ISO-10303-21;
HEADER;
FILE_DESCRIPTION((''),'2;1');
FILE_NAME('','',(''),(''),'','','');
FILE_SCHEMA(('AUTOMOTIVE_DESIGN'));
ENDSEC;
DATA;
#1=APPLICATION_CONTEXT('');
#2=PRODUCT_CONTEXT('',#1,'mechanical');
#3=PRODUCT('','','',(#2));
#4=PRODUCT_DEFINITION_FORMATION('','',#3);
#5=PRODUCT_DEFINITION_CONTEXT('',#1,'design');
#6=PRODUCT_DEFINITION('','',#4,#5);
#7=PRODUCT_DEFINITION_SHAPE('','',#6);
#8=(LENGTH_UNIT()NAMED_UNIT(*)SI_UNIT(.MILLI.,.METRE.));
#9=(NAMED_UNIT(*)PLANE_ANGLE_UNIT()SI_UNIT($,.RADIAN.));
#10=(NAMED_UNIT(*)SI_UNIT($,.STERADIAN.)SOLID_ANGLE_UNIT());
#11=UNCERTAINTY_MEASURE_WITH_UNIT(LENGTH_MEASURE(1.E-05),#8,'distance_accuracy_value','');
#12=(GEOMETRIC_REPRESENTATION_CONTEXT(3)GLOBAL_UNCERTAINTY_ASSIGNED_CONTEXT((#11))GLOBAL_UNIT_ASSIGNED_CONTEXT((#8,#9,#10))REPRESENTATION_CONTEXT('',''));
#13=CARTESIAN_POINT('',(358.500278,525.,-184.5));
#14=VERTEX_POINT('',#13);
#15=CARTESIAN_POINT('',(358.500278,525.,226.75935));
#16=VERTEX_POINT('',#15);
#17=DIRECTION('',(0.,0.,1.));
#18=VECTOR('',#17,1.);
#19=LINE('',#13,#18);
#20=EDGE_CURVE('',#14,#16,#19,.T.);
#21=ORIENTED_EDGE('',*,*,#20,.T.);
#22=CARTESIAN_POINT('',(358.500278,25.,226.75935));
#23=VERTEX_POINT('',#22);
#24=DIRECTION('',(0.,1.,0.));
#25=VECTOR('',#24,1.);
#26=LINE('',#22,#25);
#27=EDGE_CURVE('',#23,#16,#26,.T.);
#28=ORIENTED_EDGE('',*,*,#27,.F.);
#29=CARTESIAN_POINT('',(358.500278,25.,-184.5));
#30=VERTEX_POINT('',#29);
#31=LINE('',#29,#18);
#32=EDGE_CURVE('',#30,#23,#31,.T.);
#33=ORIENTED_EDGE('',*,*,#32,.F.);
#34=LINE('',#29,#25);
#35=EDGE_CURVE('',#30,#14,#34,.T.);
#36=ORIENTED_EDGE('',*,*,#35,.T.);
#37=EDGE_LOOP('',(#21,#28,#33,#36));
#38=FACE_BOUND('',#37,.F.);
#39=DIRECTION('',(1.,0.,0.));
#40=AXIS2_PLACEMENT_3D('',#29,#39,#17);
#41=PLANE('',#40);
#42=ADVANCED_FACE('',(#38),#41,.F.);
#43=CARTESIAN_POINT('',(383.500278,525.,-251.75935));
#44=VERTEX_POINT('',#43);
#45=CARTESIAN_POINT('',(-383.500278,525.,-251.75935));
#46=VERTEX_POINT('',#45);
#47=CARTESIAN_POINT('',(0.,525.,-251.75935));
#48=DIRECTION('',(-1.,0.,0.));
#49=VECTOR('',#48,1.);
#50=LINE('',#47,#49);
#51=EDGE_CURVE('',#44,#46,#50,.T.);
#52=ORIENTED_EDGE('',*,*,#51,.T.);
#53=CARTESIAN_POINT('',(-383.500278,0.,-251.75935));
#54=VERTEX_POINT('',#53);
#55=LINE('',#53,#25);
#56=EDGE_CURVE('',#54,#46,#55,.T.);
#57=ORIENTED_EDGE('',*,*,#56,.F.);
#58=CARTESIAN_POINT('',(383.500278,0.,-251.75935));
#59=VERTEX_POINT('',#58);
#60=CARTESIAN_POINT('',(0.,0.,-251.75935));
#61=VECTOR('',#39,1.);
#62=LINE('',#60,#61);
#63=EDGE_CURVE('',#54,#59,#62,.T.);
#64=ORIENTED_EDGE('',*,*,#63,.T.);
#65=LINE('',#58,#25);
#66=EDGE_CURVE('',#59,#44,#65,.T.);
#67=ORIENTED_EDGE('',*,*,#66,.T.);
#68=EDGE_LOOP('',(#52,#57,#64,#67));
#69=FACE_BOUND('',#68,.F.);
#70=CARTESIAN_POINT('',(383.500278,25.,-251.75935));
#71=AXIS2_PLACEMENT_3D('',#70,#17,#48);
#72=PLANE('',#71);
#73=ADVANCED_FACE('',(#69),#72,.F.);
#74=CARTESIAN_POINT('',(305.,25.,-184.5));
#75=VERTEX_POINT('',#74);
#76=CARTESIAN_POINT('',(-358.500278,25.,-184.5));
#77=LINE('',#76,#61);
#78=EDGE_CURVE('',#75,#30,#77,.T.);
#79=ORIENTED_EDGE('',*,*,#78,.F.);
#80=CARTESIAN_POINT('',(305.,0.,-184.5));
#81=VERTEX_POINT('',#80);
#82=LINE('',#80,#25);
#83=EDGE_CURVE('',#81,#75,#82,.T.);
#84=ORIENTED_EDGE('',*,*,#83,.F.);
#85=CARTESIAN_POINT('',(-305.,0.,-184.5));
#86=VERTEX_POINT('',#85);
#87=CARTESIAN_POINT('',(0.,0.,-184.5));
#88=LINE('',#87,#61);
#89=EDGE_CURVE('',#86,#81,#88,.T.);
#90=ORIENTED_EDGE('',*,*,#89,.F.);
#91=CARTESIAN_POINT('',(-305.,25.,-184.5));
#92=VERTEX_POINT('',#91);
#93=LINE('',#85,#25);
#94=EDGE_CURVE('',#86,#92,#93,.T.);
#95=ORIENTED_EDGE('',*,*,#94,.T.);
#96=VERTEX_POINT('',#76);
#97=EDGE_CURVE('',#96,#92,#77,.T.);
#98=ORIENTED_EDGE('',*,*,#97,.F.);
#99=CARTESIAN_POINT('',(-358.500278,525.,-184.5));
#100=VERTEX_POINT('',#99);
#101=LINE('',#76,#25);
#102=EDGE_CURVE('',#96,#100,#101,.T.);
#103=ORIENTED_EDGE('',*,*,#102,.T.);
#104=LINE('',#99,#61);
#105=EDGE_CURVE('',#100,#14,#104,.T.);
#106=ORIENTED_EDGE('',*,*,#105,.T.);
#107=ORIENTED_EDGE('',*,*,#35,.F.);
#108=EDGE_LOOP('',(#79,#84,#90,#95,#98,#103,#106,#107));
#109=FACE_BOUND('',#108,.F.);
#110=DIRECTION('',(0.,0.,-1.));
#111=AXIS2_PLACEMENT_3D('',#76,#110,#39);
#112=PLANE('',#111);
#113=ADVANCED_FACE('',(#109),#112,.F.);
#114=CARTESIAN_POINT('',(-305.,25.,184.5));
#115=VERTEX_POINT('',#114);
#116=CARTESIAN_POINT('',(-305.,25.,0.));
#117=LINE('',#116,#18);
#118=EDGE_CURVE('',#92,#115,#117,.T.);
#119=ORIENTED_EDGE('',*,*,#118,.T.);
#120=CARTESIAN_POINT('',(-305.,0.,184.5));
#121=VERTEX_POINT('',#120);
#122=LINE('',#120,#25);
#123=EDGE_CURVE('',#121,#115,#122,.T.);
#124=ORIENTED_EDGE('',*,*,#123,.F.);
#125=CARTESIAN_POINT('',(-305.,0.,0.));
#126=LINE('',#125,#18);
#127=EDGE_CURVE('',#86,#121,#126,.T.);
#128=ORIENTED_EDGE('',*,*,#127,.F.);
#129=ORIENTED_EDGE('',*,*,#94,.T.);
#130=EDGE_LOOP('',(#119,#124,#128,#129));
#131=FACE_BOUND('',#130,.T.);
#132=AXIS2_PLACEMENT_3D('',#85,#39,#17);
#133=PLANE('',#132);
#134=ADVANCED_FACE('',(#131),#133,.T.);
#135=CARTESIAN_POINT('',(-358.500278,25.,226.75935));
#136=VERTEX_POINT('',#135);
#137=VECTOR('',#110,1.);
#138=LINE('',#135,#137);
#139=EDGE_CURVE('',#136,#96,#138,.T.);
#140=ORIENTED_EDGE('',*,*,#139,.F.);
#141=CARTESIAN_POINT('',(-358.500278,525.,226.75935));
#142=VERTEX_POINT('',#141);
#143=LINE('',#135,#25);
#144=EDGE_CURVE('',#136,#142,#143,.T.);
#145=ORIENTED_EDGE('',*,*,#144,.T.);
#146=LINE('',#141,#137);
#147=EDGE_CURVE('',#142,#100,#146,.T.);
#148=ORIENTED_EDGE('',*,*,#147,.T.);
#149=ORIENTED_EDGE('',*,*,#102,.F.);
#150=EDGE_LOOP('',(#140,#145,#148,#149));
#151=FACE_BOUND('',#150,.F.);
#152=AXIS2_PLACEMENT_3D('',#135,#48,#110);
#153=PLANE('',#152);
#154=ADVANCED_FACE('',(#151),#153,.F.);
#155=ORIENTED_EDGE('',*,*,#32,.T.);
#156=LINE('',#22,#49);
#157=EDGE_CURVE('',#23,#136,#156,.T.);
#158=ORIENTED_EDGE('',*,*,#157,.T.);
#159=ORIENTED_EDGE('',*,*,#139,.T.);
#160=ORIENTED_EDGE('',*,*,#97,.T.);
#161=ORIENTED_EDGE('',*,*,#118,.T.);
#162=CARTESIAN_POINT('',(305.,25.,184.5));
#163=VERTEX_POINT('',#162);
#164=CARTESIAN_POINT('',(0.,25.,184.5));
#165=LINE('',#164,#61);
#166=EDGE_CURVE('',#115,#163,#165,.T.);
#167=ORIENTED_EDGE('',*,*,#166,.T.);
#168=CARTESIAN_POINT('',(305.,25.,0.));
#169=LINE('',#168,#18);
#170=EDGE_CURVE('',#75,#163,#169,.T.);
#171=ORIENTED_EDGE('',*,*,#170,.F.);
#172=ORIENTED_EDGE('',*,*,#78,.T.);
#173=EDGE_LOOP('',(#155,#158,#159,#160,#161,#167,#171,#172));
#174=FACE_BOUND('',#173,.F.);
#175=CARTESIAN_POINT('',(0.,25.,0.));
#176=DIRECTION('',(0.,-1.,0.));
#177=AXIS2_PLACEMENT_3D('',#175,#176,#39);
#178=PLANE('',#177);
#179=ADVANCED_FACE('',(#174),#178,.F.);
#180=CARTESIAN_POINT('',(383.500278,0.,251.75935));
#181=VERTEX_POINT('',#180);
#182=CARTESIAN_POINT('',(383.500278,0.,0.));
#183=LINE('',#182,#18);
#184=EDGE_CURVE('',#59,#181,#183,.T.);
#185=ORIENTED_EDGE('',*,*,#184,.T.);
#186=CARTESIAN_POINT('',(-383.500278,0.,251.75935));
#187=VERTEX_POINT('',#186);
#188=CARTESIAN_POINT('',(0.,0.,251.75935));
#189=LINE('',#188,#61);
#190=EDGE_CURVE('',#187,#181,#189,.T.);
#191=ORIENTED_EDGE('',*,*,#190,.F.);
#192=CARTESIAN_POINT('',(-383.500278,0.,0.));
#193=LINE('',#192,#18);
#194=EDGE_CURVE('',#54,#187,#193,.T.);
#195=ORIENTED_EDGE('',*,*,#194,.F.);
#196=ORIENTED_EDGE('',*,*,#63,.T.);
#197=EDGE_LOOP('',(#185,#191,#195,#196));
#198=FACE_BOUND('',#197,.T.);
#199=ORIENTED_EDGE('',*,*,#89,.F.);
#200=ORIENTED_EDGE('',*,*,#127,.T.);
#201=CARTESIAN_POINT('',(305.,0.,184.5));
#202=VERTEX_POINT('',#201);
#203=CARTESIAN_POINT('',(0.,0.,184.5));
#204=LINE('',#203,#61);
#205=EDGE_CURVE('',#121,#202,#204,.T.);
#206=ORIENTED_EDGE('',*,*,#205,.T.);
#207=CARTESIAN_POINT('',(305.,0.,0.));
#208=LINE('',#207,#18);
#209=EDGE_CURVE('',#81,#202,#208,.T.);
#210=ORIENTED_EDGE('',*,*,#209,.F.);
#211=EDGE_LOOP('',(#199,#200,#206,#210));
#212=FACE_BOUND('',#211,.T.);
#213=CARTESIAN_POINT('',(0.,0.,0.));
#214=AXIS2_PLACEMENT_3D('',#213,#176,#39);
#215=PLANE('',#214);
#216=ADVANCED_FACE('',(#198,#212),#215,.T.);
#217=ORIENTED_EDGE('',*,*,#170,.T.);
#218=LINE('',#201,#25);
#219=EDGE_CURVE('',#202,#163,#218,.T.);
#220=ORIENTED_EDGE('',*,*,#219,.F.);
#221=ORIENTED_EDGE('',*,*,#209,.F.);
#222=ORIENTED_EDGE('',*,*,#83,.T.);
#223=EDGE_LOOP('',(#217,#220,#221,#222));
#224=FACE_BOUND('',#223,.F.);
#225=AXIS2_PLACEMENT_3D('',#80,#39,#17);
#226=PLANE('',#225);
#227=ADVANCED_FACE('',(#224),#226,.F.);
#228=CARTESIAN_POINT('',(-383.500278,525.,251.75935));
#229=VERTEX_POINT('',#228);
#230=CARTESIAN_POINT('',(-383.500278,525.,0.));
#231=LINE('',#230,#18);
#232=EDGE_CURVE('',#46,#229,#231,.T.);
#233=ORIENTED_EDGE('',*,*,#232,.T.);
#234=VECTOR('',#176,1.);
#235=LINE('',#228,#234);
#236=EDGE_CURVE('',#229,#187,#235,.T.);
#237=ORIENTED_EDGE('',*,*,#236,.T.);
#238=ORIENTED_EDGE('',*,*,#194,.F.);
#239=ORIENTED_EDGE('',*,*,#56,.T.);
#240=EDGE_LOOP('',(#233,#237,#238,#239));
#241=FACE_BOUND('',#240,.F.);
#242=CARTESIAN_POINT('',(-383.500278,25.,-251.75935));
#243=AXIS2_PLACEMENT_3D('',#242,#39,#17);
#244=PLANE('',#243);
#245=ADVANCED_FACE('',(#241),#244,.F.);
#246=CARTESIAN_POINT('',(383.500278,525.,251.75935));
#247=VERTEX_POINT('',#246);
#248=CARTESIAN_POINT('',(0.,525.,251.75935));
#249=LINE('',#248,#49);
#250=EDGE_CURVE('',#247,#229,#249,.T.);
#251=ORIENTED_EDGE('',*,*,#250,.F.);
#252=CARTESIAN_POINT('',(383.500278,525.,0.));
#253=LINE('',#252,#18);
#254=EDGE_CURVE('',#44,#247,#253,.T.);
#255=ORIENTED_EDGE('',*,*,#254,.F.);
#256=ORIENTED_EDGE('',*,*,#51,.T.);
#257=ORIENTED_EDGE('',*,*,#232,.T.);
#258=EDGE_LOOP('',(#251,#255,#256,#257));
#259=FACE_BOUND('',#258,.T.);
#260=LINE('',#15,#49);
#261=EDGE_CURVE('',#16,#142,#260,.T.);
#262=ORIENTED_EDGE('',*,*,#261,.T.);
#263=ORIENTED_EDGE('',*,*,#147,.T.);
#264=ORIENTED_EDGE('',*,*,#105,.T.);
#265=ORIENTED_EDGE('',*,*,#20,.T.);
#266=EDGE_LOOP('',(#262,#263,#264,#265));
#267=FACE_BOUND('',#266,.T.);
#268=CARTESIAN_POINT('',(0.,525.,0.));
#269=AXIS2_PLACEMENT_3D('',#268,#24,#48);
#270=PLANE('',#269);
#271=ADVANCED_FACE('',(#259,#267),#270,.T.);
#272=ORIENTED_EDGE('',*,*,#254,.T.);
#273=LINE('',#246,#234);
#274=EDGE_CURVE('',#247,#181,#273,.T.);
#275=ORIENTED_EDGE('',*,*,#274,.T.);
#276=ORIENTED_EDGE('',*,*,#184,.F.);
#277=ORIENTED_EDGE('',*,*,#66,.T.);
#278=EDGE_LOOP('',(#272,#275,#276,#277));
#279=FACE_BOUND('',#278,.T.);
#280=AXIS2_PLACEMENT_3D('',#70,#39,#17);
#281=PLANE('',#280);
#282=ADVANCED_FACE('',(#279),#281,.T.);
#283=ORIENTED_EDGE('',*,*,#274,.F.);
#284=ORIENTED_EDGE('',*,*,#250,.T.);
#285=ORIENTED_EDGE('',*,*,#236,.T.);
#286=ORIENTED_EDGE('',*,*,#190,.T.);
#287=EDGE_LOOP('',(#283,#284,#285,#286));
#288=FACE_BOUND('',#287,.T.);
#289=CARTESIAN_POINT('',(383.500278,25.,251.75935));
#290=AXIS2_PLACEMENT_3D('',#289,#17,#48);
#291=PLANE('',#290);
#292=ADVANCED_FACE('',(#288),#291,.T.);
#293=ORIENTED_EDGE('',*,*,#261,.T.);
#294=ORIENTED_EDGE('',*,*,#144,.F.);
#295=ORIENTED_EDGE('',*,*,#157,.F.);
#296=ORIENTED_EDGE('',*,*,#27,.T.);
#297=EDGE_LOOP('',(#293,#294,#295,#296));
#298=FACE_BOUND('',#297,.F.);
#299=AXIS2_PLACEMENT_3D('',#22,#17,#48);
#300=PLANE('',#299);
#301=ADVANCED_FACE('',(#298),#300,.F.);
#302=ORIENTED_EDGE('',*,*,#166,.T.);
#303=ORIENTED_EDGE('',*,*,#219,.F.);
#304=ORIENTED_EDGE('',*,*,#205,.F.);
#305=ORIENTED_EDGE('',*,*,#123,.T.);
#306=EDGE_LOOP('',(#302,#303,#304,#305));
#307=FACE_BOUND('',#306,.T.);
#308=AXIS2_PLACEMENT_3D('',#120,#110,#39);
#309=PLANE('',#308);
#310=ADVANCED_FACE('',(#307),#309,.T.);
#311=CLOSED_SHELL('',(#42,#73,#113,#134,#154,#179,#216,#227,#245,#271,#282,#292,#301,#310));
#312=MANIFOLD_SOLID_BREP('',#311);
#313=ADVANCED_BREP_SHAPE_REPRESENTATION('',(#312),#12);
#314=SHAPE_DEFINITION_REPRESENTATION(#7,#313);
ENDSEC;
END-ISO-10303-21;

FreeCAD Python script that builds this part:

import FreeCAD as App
import Part
import Sketcher

doc = App.newDocument("Part")
body = doc.addObject("PartDesign::Body", "Body")

# Sketch on XZ plane
sketch1 = doc.addObject("Sketcher::SketchObject", "Sketch")
body.addObject(sketch1)
sketch1.AttachmentSupport = (doc.XZ_Plane, [""])
sketch1.MapMode = "FlatFace"
sketch1.addGeometry(Part.LineSegment(App.Vector(-383.500278, 251.75935, 0), App.Vector(-383.500278, -251.75935, 0)), False)
sketch1.addGeometry(Part.LineSegment(App.Vector(-383.500278, -251.75935, 0), App.Vector(383.500278, -251.75935, 0)), False)
sketch1.addGeometry(Part.LineSegment(App.Vector(383.500278, -251.75935, 0), App.Vector(383.500278, 251.75935, 0)), False)
sketch1.addGeometry(Part.LineSegment(App.Vector(383.500278, 251.75935, 0), App.Vector(-383.500278, 251.75935, 0)), False)
sketch1.addGeometry(Part.LineSegment(App.Vector(305, -184.5, 0), App.Vector(-305, -184.5, 0)), False)
sketch1.addGeometry(Part.LineSegment(App.Vector(-305, -184.5, 0), App.Vector(-305, 184.5, 0)), False)
sketch1.addGeometry(Part.LineSegment(App.Vector(-305, 184.5, 0), App.Vector(305, 184.5, 0)), False)
sketch1.addGeometry(Part.LineSegment(App.Vector(305, 184.5, 0), App.Vector(305, -184.5, 0)), False)
sketch1.addConstraint(Sketcher.Constraint("Coincident", 0, 2, 1, 1))
sketch1.addConstraint(Sketcher.Constraint("Coincident", 1, 2, 2, 1))
sketch1.addConstraint(Sketcher.Constraint("Coincident", 2, 2, 3, 1))
sketch1.addConstraint(Sketcher.Constraint("Coincident", 3, 2, 0, 1))
sketch1.addConstraint(Sketcher.Constraint("Coincident", 4, 2, 5, 1))
sketch1.addConstraint(Sketcher.Constraint("Coincident", 5, 2, 6, 1))
sketch1.addConstraint(Sketcher.Constraint("Coincident", 6, 2, 7, 1))
sketch1.addConstraint(Sketcher.Constraint("Coincident", 7, 2, 4, 1))
sketch1.addConstraint(Sketcher.Constraint("Vertical", 0))
sketch1.addConstraint(Sketcher.Constraint("Horizontal", 1))
sketch1.addConstraint(Sketcher.Constraint("Vertical", 2))
sketch1.addConstraint(Sketcher.Constraint("Horizontal", 3))
sketch1.addConstraint(Sketcher.Constraint("Horizontal", 4))
sketch1.addConstraint(Sketcher.Constraint("Vertical", 5))
sketch1.addConstraint(Sketcher.Constraint("Horizontal", 6))
sketch1.addConstraint(Sketcher.Constraint("Vertical", 7))
sketch1.addConstraint(Sketcher.Constraint("Symmetric", 0, 2, 2, 2, -1, 1))
sketch1.addConstraint(Sketcher.Constraint("Symmetric", 4, 2, 6, 2, -1, 1))
sketch1.addConstraint(Sketcher.Constraint("DistanceX", 4, 2, 4, 1, 610.0))
sketch1.addConstraint(Sketcher.Constraint("DistanceY", 5, 1, 5, 2, 369.0))
sketch1.addConstraint(Sketcher.Constraint("DistanceY", 0, 2, 0, 1, 503.5187))
sketch1.addConstraint(Sketcher.Constraint("DistanceX", 1, 1, 1, 2, 767.000556))
pad1 = doc.addObject("PartDesign::Pad", "Pad")
body.addObject(pad1)
pad1.Profile = sketch1
pad1.Length = 25
pad1.Reversed = True

# Sketch on XZ plane
sketch2 = doc.addObject("Sketcher::SketchObject", "Sketch001")
body.addObject(sketch2)
sketch2.AttachmentSupport = (doc.XZ_Plane, [""])
sketch2.MapMode = "FlatFace"
sketch2.AttachmentOffset = App.Placement(App.Vector(0, 0, -25), App.Rotation())
sketch2.addGeometry(Part.LineSegment(App.Vector(383.500278, 251.75935, 0), App.Vector(383.500278, -251.75935, 0)), False)
sketch2.addGeometry(Part.LineSegment(App.Vector(383.500278, -251.75935, 0), App.Vector(-383.500278, -251.75935, 0)), False)
sketch2.addGeometry(Part.LineSegment(App.Vector(-383.500278, -251.75935, 0), App.Vector(-383.500278, 251.75935, 0)), False)
sketch2.addGeometry(Part.LineSegment(App.Vector(-383.500278, 251.75935, 0), App.Vector(383.500278, 251.75935, 0)), False)
sketch2.addGeometry(Part.LineSegment(App.Vector(-358.500278, -184.5, 0), App.Vector(358.500278, -184.5, 0)), False)
sketch2.addGeometry(Part.LineSegment(App.Vector(358.500278, -184.5, 0), App.Vector(358.500278, 226.75935, 0)), False)
sketch2.addGeometry(Part.LineSegment(App.Vector(358.500278, 226.75935, 0), App.Vector(-358.500278, 226.75935, 0)), False)
sketch2.addGeometry(Part.LineSegment(App.Vector(-358.500278, 226.75935, 0), App.Vector(-358.500278, -184.5, 0)), False)
sketch2.addConstraint(Sketcher.Constraint("Coincident", 0, 2, 1, 1))
sketch2.addConstraint(Sketcher.Constraint("Coincident", 1, 2, 2, 1))
sketch2.addConstraint(Sketcher.Constraint("Coincident", 2, 2, 3, 1))
sketch2.addConstraint(Sketcher.Constraint("Coincident", 3, 2, 0, 1))
sketch2.addConstraint(Sketcher.Constraint("Coincident", 4, 2, 5, 1))
sketch2.addConstraint(Sketcher.Constraint("Coincident", 5, 2, 6, 1))
sketch2.addConstraint(Sketcher.Constraint("Coincident", 6, 2, 7, 1))
sketch2.addConstraint(Sketcher.Constraint("Coincident", 7, 2, 4, 1))
sketch2.addConstraint(Sketcher.Constraint("Vertical", 0))
sketch2.addConstraint(Sketcher.Constraint("Horizontal", 1))
sketch2.addConstraint(Sketcher.Constraint("Vertical", 2))
sketch2.addConstraint(Sketcher.Constraint("Horizontal", 3))
sketch2.addConstraint(Sketcher.Constraint("Horizontal", 4))
sketch2.addConstraint(Sketcher.Constraint("Vertical", 5))
sketch2.addConstraint(Sketcher.Constraint("Horizontal", 6))
sketch2.addConstraint(Sketcher.Constraint("Vertical", 7))
sketch2.addConstraint(Sketcher.Constraint("Symmetric", 0, 2, 2, 2, -1, 1))
sketch2.addConstraint(Sketcher.Constraint("DistanceX", 4, 2, 0, 2, 25.0))
sketch2.addConstraint(Sketcher.Constraint("DistanceY", 5, 2, 3, 2, 25.0))
sketch2.addConstraint(Sketcher.Constraint("DistanceX", 2, 2, 6, 2, 25.0))
sketch2.addConstraint(Sketcher.Constraint("DistanceY", 4, 2, -1, 1, 184.5))
sketch2.addConstraint(Sketcher.Constraint("DistanceY", 0, 2, 0, 1, 503.5187))
sketch2.addConstraint(Sketcher.Constraint("DistanceX", 1, 2, 1, 1, 767.000556))
pad2 = doc.addObject("PartDesign::Pad", "Pad001")
body.addObject(pad2)
pad2.Profile = sketch2
pad2.Length = 500
pad2.Reversed = True

doc.recompute()
